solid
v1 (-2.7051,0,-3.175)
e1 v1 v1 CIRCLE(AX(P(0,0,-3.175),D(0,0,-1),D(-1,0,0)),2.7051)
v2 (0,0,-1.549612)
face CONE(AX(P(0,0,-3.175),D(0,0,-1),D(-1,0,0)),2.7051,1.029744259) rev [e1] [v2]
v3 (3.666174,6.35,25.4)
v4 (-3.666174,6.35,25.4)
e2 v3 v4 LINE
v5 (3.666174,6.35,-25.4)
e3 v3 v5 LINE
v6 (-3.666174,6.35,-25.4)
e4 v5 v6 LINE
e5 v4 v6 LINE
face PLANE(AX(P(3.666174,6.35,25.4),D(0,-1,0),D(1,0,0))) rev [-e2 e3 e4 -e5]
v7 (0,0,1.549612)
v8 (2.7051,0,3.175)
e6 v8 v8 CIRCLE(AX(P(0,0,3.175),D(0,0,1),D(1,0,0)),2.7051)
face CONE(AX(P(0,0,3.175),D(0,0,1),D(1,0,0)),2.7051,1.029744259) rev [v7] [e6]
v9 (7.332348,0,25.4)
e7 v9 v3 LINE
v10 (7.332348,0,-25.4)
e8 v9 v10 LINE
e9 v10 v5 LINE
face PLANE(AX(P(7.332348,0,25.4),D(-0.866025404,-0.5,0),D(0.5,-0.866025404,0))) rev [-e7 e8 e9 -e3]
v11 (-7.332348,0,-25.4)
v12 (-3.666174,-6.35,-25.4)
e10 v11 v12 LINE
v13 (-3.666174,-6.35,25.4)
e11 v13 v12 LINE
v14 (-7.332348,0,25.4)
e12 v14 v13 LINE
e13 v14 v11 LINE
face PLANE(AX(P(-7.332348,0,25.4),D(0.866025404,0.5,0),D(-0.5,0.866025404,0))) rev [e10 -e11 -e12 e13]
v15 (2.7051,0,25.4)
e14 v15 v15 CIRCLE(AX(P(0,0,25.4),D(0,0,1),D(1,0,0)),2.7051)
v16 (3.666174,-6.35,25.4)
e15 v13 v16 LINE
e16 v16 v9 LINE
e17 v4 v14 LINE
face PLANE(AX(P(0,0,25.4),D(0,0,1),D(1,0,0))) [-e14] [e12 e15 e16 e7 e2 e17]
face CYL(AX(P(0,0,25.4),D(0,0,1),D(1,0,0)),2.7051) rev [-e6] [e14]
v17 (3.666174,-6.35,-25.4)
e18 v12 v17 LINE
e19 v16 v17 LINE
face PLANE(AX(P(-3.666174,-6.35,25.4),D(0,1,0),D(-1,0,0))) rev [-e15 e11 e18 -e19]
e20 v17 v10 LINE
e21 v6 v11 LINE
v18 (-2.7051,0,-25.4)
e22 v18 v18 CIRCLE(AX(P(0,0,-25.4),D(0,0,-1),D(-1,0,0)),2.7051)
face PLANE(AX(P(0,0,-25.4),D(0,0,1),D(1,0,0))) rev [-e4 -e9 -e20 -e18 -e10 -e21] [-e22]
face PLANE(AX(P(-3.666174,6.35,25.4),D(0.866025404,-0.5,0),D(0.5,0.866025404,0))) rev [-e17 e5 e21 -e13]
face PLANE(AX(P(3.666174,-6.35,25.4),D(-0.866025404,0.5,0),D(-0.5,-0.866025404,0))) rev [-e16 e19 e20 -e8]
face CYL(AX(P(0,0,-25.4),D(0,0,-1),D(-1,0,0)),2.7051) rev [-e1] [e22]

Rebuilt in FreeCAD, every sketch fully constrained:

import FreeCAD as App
import Part
import Sketcher
from FreeCAD import Vector
Q = App.Units.Quantity


def add_polygon(sketch, points):
    """Adds a closed chain of lines whose ends are joined by coincident constraints."""
    first, n = sketch.GeometryCount, len(points)
    for a, b in zip(points, points[1:] + points[:1]):
        sketch.addGeometry(Part.LineSegment(App.Vector(*a, 0), App.Vector(*b, 0)), False)
    for i in range(n):
        sketch.addConstraint(Sketcher.Constraint("Coincident", first + i, 2, first + (i + 1) % n, 1))

doc = App.newDocument("Part")
body = doc.addObject("PartDesign::Body", "Body")

# Sketch on XY plane
sketch1 = doc.addObject("Sketcher::SketchObject", "Sketch")
body.addObject(sketch1)
sketch1.AttachmentSupport = (doc.XY_Plane, [""])
sketch1.MapMode = "FlatFace"
add_polygon(sketch1, [(7, 0), (4, 6), (-4, 6), (-7, 0), (-4, -6), (4, -6)])  # lines 0-5
sketch1.addConstraint([
    Sketcher.Constraint("Horizontal", 1),
    Sketcher.Constraint("Horizontal", 4),
    Sketcher.Constraint("Symmetric", 0, 2, 3, 2, -1, 1),
    Sketcher.Constraint("Symmetric", 2, 2, 5, 2, -1, 1),
    Sketcher.Constraint("PointOnObject", 2, 2, -1),
    Sketcher.Constraint("Parallel", 2, 5),
    Sketcher.Constraint("Vertical", 1, 2, 3, 2),
    Sketcher.Constraint("Angle", 0, Q("120 deg")),
    Sketcher.Constraint("DistanceY", 3, 2, 1, 2, Q("0.5 in")),
    Sketcher.Constraint("DistanceX", 1, 2, 1, 1, 7.332348),
])
pad1 = doc.addObject("PartDesign::Pad", "Pad")
body.addObject(pad1)
pad1.Profile = sketch1
pad1.Length = Q("2 in")
pad1.Midplane = True

# Sketch on XY plane
sketch2 = doc.addObject("Sketcher::SketchObject", "Sketch001")
body.addObject(sketch2)
sketch2.AttachmentSupport = (doc.XY_Plane, [""])
sketch2.MapMode = "FlatFace"
sketch2.AttachmentOffset = App.Placement(Vector(0, 0, 1 * 25.4), App.Rotation())
sketch2.addGeometry(Part.Circle(Vector(0, 0, 0), Vector(0, 0, 1), 2.7), False)
sketch2.addConstraint([
    Sketcher.Constraint("Coincident", 0, 3, -1, 1),
    Sketcher.Constraint("Diameter", 0, Q("0.213 in")),
])
doc.recompute()
hole = doc.addObject("PartDesign::Hole", "Hole")
body.addObject(hole)
hole.Profile = sketch2
hole.ThreadType = "None"
hole.Diameter = Q("0.213 in")
hole.DepthType = "Dimension"
hole.Depth = Q("0.875 in")
hole.DrillPoint = "Angled"
hole.DrillPointAngle = 118

# Sketch on XY plane
sketch3 = doc.addObject("Sketcher::SketchObject", "Sketch002")
body.addObject(sketch3)
sketch3.AttachmentSupport = (doc.XY_Plane, [""])
sketch3.MapMode = "FlatFace"
sketch3.AttachmentOffset = App.Placement(Vector(0, 0, -1 * 25.4), App.Rotation())
sketch3.addGeometry(Part.Circle(Vector(0, 0, 0), Vector(0, 0, 1), 2.7), False)
sketch3.addConstraint([
    Sketcher.Constraint("Coincident", 0, 3, -1, 1),
    Sketcher.Constraint("Diameter", 0, Q("0.213 in")),
])
doc.recompute()
hole2 = doc.addObject("PartDesign::Hole", "Hole001")
body.addObject(hole2)
hole2.Profile = sketch3
hole2.ThreadType = "None"
hole2.Diameter = Q("0.213 in")
hole2.DepthType = "Dimension"
hole2.Depth = Q("0.875 in")
hole2.DrillPoint = "Angled"
hole2.DrillPointAngle = 118
hole2.Reversed = True

doc.recompute()
